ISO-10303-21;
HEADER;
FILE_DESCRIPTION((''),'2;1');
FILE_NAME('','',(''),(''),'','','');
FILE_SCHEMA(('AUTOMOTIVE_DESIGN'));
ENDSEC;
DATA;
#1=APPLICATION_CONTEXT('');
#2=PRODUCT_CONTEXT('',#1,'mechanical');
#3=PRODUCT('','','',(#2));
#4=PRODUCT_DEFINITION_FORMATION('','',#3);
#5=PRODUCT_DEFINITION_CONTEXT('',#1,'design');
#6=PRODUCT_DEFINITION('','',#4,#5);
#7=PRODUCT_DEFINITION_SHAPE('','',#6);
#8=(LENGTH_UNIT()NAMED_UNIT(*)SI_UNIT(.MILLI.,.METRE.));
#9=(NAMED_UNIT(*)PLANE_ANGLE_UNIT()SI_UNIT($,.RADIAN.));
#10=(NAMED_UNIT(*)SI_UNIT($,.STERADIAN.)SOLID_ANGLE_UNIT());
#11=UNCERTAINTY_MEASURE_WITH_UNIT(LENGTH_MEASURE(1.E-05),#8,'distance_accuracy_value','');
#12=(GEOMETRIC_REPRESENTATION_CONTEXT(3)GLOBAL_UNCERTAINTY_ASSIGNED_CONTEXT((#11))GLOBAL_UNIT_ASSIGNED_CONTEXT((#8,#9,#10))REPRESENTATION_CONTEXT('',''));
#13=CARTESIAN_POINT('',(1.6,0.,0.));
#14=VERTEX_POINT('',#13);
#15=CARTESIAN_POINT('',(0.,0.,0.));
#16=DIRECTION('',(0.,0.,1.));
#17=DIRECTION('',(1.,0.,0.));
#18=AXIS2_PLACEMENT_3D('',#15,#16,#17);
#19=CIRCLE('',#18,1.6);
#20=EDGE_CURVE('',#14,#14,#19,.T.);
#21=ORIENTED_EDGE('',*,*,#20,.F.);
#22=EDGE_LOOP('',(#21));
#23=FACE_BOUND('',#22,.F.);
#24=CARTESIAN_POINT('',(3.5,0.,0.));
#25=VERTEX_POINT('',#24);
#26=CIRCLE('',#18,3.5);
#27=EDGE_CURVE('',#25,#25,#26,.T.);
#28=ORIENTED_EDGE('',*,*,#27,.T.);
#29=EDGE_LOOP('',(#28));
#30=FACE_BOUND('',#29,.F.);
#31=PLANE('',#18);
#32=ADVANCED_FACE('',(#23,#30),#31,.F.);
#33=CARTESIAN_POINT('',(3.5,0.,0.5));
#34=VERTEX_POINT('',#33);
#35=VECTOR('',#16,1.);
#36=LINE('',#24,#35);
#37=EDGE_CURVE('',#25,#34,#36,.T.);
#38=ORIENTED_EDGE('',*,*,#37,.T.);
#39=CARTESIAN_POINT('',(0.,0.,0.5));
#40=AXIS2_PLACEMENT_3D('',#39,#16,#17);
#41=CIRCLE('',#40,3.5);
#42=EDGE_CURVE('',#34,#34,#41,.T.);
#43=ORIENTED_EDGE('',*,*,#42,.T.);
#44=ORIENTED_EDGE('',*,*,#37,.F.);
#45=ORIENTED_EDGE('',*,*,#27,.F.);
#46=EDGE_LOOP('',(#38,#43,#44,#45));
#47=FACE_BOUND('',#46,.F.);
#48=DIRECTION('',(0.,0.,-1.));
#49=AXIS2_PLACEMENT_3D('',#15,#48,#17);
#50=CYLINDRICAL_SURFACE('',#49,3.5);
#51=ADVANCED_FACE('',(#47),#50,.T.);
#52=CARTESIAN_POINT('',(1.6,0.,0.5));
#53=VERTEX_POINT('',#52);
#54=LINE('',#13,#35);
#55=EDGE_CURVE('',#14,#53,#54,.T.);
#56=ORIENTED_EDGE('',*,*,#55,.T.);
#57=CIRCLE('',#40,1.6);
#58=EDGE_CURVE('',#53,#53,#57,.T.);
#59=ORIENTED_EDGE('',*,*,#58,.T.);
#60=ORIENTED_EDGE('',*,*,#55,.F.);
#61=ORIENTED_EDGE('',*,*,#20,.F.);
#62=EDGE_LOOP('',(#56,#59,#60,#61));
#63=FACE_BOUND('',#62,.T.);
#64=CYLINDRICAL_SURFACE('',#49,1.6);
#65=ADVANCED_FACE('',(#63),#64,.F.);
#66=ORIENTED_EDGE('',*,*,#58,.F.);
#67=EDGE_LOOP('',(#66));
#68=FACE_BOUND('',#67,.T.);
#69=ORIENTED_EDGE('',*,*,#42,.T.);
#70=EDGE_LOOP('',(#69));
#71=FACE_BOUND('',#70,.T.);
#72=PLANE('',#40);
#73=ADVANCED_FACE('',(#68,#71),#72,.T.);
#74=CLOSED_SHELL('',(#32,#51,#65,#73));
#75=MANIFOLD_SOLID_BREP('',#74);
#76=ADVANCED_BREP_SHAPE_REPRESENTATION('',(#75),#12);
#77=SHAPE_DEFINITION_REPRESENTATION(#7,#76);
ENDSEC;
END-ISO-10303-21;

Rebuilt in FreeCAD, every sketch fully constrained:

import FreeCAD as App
import Part
import Sketcher
Q = App.Units.Quantity

doc = App.newDocument("Part")
body = doc.addObject("PartDesign::Body", "Body")

# Sketch on XY plane
sketch1 = doc.addObject("Sketcher::SketchObject", "Sketch")
body.addObject(sketch1)
sketch1.AttachmentSupport = (doc.XY_Plane, [""])
sketch1.MapMode = "FlatFace"
sketch1.addGeometry([
    Part.Circle(App.Vector(0, 0, 0), App.Vector(0, 0, 1), 3.5),
    Part.Circle(App.Vector(0, 0, 0), App.Vector(0, 0, 1), 1.6),
], False)
sketch1.addConstraint([
    Sketcher.Constraint("Coincident", 0, 3, -1, 1),
    Sketcher.Constraint("Coincident", 1, 3, -1, 1),
    Sketcher.Constraint("Diameter", 0, Q("7 mm")),
    Sketcher.Constraint("Diameter", 1, Q("3.2 mm")),
])
pad1 = doc.addObject("PartDesign::Pad", "Pad")
body.addObject(pad1)
pad1.Profile = sketch1
pad1.Length = 0.5

doc.recompute()
